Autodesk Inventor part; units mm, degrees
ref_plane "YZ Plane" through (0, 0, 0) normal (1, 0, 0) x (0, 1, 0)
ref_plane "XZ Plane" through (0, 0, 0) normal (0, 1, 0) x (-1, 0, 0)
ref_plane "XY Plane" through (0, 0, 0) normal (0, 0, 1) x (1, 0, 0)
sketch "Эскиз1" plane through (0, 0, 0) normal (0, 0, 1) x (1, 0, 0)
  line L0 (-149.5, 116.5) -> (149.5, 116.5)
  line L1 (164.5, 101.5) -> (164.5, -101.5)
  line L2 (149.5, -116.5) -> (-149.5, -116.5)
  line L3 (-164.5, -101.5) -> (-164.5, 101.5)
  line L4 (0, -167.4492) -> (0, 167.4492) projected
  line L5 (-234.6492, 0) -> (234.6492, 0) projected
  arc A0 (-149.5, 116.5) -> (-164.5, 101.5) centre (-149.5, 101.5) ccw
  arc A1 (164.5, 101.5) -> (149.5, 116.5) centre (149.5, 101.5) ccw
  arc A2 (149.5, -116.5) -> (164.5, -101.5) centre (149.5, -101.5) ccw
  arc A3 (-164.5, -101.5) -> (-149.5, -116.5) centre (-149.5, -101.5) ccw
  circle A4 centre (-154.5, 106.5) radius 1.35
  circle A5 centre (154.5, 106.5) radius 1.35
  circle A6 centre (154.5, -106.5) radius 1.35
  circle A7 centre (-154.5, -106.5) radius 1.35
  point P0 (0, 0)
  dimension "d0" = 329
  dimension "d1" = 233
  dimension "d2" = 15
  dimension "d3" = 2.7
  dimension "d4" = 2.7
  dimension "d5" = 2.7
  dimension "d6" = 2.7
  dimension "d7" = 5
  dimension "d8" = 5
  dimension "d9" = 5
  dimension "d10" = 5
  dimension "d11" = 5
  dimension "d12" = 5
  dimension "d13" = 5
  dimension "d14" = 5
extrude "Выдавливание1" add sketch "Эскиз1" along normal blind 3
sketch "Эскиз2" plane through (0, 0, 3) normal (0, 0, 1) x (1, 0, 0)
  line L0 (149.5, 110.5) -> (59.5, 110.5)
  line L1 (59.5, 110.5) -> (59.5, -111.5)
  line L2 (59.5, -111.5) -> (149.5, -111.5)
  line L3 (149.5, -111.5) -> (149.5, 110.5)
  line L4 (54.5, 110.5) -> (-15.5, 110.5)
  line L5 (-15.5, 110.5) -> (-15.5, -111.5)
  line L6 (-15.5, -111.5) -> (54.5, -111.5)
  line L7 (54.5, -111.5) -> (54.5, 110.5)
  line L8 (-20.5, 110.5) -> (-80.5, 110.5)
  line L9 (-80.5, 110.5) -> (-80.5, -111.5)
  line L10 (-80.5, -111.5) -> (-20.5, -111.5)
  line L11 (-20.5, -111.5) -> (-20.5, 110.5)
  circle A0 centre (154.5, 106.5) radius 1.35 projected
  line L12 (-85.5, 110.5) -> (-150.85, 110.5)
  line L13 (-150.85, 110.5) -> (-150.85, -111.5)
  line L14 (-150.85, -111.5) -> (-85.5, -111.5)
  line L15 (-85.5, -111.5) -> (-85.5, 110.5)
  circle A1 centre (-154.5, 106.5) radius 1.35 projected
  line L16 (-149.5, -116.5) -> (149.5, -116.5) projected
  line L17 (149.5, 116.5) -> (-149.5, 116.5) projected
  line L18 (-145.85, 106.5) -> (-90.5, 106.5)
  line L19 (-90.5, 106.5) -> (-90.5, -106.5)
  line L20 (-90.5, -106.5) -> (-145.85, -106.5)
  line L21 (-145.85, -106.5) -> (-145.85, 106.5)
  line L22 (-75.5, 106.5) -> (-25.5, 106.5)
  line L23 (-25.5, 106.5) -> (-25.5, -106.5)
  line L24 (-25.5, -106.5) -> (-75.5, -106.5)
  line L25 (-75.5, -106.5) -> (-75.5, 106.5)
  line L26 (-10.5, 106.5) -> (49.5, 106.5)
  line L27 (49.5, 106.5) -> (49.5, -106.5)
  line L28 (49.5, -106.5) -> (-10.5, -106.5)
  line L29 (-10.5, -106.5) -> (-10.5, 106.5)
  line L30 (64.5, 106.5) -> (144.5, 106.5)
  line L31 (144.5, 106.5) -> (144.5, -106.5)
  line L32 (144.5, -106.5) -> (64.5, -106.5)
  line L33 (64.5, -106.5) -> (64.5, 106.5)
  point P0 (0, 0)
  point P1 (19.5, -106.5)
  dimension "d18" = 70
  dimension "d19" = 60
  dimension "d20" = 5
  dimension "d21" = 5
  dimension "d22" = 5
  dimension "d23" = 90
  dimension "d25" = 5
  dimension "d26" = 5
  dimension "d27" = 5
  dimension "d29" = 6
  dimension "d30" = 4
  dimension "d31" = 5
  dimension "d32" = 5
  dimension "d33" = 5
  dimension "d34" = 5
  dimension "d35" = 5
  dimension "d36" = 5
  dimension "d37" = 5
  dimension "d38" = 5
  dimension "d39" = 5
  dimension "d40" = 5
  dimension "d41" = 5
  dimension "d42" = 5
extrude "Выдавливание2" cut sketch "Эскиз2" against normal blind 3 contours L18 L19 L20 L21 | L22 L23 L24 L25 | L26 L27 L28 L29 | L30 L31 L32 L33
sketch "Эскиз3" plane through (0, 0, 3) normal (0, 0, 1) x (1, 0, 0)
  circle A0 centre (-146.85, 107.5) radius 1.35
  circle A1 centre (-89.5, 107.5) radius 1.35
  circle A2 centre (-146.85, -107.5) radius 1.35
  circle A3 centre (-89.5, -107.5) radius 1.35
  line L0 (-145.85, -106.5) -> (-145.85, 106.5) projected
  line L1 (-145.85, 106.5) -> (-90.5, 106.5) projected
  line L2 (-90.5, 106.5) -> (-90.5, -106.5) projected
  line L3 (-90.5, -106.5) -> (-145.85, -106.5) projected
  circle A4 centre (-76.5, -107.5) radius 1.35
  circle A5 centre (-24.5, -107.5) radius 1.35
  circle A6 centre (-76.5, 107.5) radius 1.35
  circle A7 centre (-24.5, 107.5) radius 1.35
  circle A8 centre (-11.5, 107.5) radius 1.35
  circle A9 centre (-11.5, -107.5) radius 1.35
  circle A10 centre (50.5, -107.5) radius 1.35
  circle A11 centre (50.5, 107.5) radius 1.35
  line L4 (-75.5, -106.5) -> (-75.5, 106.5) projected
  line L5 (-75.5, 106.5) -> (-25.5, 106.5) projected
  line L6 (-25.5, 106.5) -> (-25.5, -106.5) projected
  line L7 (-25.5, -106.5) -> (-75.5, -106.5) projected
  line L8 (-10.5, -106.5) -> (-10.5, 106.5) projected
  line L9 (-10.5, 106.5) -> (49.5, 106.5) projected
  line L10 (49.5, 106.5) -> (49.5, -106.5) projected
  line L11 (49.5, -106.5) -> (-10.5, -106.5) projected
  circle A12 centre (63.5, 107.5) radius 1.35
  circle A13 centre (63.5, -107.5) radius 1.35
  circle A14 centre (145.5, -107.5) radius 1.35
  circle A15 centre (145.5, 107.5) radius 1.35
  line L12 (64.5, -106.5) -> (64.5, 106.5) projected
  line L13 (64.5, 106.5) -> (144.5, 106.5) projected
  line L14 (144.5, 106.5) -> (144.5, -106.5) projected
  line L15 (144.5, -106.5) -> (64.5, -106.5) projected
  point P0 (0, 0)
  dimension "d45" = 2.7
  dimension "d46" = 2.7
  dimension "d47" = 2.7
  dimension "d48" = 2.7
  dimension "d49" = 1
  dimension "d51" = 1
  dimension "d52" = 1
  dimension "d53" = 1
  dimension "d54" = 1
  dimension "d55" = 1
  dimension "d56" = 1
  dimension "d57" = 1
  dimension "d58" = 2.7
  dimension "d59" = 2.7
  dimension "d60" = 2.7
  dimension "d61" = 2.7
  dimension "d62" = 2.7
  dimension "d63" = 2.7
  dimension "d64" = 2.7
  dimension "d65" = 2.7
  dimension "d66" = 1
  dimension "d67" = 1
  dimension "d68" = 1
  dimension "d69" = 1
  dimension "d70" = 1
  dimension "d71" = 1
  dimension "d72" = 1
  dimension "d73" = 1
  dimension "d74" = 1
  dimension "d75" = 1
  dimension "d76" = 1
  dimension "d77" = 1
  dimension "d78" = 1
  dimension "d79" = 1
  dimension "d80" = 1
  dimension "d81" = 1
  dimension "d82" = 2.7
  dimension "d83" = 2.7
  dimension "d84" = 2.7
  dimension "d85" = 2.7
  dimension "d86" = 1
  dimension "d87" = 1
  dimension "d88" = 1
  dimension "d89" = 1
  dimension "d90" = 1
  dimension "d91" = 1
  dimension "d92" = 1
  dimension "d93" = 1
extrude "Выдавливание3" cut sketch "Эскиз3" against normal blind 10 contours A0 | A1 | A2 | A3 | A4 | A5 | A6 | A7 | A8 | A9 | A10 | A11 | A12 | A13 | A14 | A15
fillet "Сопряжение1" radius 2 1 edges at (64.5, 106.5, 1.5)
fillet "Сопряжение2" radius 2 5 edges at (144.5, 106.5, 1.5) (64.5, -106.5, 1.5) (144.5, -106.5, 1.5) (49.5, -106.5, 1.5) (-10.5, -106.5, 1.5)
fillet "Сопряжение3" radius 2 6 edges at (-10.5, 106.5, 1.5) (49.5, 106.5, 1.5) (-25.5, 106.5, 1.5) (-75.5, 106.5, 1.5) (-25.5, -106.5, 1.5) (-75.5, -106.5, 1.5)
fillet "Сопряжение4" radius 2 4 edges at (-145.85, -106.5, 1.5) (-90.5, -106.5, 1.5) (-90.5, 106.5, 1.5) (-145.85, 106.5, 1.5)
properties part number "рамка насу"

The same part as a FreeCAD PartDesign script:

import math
import FreeCAD as App
import Part
import Sketcher
from FreeCAD import Vector


def edges_at(feature, points):
    """Names of the edges that pass closest to the given points."""
    edges = feature.Shape.Edges
    near = lambda p: min(range(len(edges)), key=lambda i: edges[i].distToShape(Part.Vertex(*p))[0])
    return sorted({f"Edge{near(p) + 1}" for p in points})

doc = App.newDocument("Part")
body = doc.addObject("PartDesign::Body", "Body")

# Sketch on XY plane
sketch1 = body.newObject("Sketcher::SketchObject", "Sketch")
sketch1.AttachmentSupport = (doc.getObject("XY_Plane"), [""])
sketch1.MapMode = "FlatFace"
sketch1.addGeometry([
    Part.ArcOfCircle(Part.Circle(Vector(-149.5, 101.5, 0), Vector(0, 0, 1), 15), math.radians(90), math.radians(180)),  # 0
    Part.LineSegment(Vector(-164.5, 101.5, 0), Vector(-164.5, -101.5, 0)),  # 1
    Part.ArcOfCircle(Part.Circle(Vector(-149.5, -101.5, 0), Vector(0, 0, 1), 15), math.radians(180), math.radians(270)),  # 2
    Part.LineSegment(Vector(-149.5, -116.5, 0), Vector(149.5, -116.5, 0)),  # 3
    Part.ArcOfCircle(Part.Circle(Vector(149.5, -101.5, 0), Vector(0, 0, 1), 15), math.radians(-90), math.radians(0)),  # 4
    Part.LineSegment(Vector(164.5, -101.5, 0), Vector(164.5, 101.5, 0)),  # 5
    Part.ArcOfCircle(Part.Circle(Vector(149.5, 101.5, 0), Vector(0, 0, 1), 15), math.radians(0), math.radians(90)),  # 6
    Part.LineSegment(Vector(149.5, 116.5, 0), Vector(-149.5, 116.5, 0)),  # 7
    Part.Circle(Vector(-154.5, 106.5, 0), Vector(0, 0, 1), 1.35),  # 8
    Part.Circle(Vector(154.5, 106.5, 0), Vector(0, 0, 1), 1.35),  # 9
    Part.Circle(Vector(-154.5, -106.5, 0), Vector(0, 0, 1), 1.35),  # 10
    Part.Circle(Vector(154.5, -106.5, 0), Vector(0, 0, 1), 1.35),  # 11
], False)
sketch1.addConstraint([
    Sketcher.Constraint("Tangent", 0, 2, 1, 1),
    Sketcher.Constraint("Tangent", 1, 2, 2, 1),
    Sketcher.Constraint("Tangent", 2, 2, 3, 1),
    Sketcher.Constraint("Tangent", 3, 2, 4, 1),
    Sketcher.Constraint("Tangent", 4, 2, 5, 1),
    Sketcher.Constraint("Tangent", 5, 2, 6, 1),
    Sketcher.Constraint("Tangent", 6, 2, 7, 1),
    Sketcher.Constraint("Tangent", 7, 2, 0, 1),
    Sketcher.Constraint("Vertical", 1),
    Sketcher.Constraint("Horizontal", 3),
    Sketcher.Constraint("Vertical", 5),
    Sketcher.Constraint("Horizontal", 7),
    Sketcher.Constraint("Equal", 0, 2),
    Sketcher.Constraint("Equal", 2, 4),
    Sketcher.Constraint("Equal", 4, 6),
    Sketcher.Constraint("Equal", 8, 9),
    Sketcher.Constraint("Equal", 9, 10),
    Sketcher.Constraint("Equal", 10, 11),
    Sketcher.Constraint("Symmetric", 0, 3, 4, 3, -1, 1),
    Sketcher.Constraint("Symmetric", 9, 3, 10, 3, -1, 1),
    Sketcher.Constraint("Symmetric", 8, 3, 11, 3, -1, 1),
    Sketcher.Constraint("Symmetric", 8, 3, 9, 3, -2),
    Sketcher.Constraint("Radius", 0, 15.0),
    Sketcher.Constraint("Diameter", 8, 2.7),
    Sketcher.Constraint("DistanceX", 8, 3, 0, 3, 5.0),
    Sketcher.Constraint("DistanceY", 0, 3, 8, 3, 5.0),
    Sketcher.Constraint("DistanceX", 3, 1, 3, 2, 299.0),
    Sketcher.Constraint("DistanceY", 1, 2, 1, 1, 203.0),
])
pad1 = body.newObject("PartDesign::Pad", "Pad")
pad1.Profile = sketch1
pad1.Length = 3

# Sketch on XY plane
sketch2 = body.newObject("Sketcher::SketchObject", "Sketch001")
sketch2.AttachmentSupport = (doc.getObject("XY_Plane"), [""])
sketch2.MapMode = "FlatFace"
sketch2.AttachmentOffset = App.Placement(Vector(0, 0, 3), App.Rotation())
sketch2.addGeometry([
    Part.LineSegment(Vector(-90.5, 106.5, 0), Vector(-145.85, 106.5, 0)),  # 0
    Part.LineSegment(Vector(-145.85, 106.5, 0), Vector(-145.85, -106.5, 0)),  # 1
    Part.LineSegment(Vector(-145.85, -106.5, 0), Vector(-90.5, -106.5, 0)),  # 2
    Part.LineSegment(Vector(-90.5, -106.5, 0), Vector(-90.5, 106.5, 0)),  # 3
    Part.LineSegment(Vector(-25.5, 106.5, 0), Vector(-75.5, 106.5, 0)),  # 4
    Part.LineSegment(Vector(-75.5, 106.5, 0), Vector(-75.5, -106.5, 0)),  # 5
    Part.LineSegment(Vector(-75.5, -106.5, 0), Vector(-25.5, -106.5, 0)),  # 6
    Part.LineSegment(Vector(-25.5, -106.5, 0), Vector(-25.5, 106.5, 0)),  # 7
    Part.LineSegment(Vector(49.5, 106.5, 0), Vector(-10.5, 106.5, 0)),  # 8
    Part.LineSegment(Vector(-10.5, 106.5, 0), Vector(-10.5, -106.5, 0)),  # 9
    Part.LineSegment(Vector(-10.5, -106.5, 0), Vector(49.5, -106.5, 0)),  # 10
    Part.LineSegment(Vector(49.5, -106.5, 0), Vector(49.5, 106.5, 0)),  # 11
    Part.LineSegment(Vector(144.5, 106.5, 0), Vector(64.5, 106.5, 0)),  # 12
    Part.LineSegment(Vector(64.5, 106.5, 0), Vector(64.5, -106.5, 0)),  # 13
    Part.LineSegment(Vector(64.5, -106.5, 0), Vector(144.5, -106.5, 0)),  # 14
    Part.LineSegment(Vector(144.5, -106.5, 0), Vector(144.5, 106.5, 0)),  # 15
], False)
sketch2.addConstraint([
    Sketcher.Constraint("Coincident", 0, 2, 1, 1),
    Sketcher.Constraint("Coincident", 1, 2, 2, 1),
    Sketcher.Constraint("Coincident", 2, 2, 3, 1),
    Sketcher.Constraint("Coincident", 3, 2, 0, 1),
    Sketcher.Constraint("Coincident", 4, 2, 5, 1),
    Sketcher.Constraint("Coincident", 5, 2, 6, 1),
    Sketcher.Constraint("Coincident", 6, 2, 7, 1),
    Sketcher.Constraint("Coincident", 7, 2, 4, 1),
    Sketcher.Constraint("Coincident", 8, 2, 9, 1),
    Sketcher.Constraint("Coincident", 9, 2, 10, 1),
    Sketcher.Constraint("Coincident", 10, 2, 11, 1),
    Sketcher.Constraint("Coincident", 11, 2, 8, 1),
    Sketcher.Constraint("Coincident", 12, 2, 13, 1),
    Sketcher.Constraint("Coincident", 13, 2, 14, 1),
    Sketcher.Constraint("Coincident", 14, 2, 15, 1),
    Sketcher.Constraint("Coincident", 15, 2, 12, 1),
    Sketcher.Constraint("Horizontal", 0),
    Sketcher.Constraint("Vertical", 1),
    Sketcher.Constraint("Horizontal", 2),
    Sketcher.Constraint("Vertical", 3),
    Sketcher.Constraint("Horizontal", 4),
    Sketcher.Constraint("Vertical", 5),
    Sketcher.Constraint("Horizontal", 6),
    Sketcher.Constraint("Vertical", 7),
    Sketcher.Constraint("Horizontal", 8),
    Sketcher.Constraint("Vertical", 9),
    Sketcher.Constraint("Horizontal", 10),
    Sketcher.Constraint("Vertical", 11),
    Sketcher.Constraint("Horizontal", 12),
    Sketcher.Constraint("Vertical", 13),
    Sketcher.Constraint("Horizontal", 14),
    Sketcher.Constraint("Vertical", 15),
    Sketcher.Constraint("Horizontal", 3, 2, 4, 2),
    Sketcher.Constraint("Horizontal", 2, 2, 5, 2),
    Sketcher.Constraint("Horizontal", 7, 2, 8, 2),
    Sketcher.Constraint("Horizontal", 6, 2, 9, 2),
    Sketcher.Constraint("Horizontal", 11, 2, 12, 2),
    Sketcher.Constraint("Horizontal", 10, 2, 13, 2),
    Sketcher.Constraint("DistanceX", 8, 2, 8, 1, 60.0),
    Sketcher.Constraint("DistanceX", 7, 2, 12, 2, 90.0),
    Sketcher.Constraint("DistanceX", 4, 2, 4, 1, 50.0),
    Sketcher.Constraint("DistanceX", 12, 2, 12, 1, 80.0),
    Sketcher.Constraint("DistanceY", 1, 2, 1, 1, 213.0),
    Sketcher.Constraint("DistanceX", 3, 2, 4, 2, 15.0),
    Sketcher.Constraint("DistanceX", 7, 2, 8, 2, 15.0),
    Sketcher.Constraint("DistanceX", 0, 2, 0, 1, 55.35),
    Sketcher.Constraint("DistanceY", -1, 1, 0, 2, 106.5),
    Sketcher.Constraint("DistanceX", 2, 2, -1, 1, 90.5),
])
pocket1 = body.newObject("PartDesign::Pocket", "Pocket")
pocket1.Profile = sketch2
pocket1.Length = 3

# Sketch on XY plane
sketch3 = body.newObject("Sketcher::SketchObject", "Sketch002")
sketch3.AttachmentSupport = (doc.getObject("XY_Plane"), [""])
sketch3.MapMode = "FlatFace"
sketch3.AttachmentOffset = App.Placement(Vector(0, 0, 3), App.Rotation())
sketch3.addGeometry([
    Part.Circle(Vector(-146.85, 107.5, 0), Vector(0, 0, 1), 1.35),  # 0
    Part.Circle(Vector(-89.5, 107.5, 0), Vector(0, 0, 1), 1.35),  # 1
    Part.Circle(Vector(-146.85, -107.5, 0), Vector(0, 0, 1), 1.35),  # 2
    Part.Circle(Vector(-89.5, -107.5, 0), Vector(0, 0, 1), 1.35),  # 3
    Part.Circle(Vector(-76.5, -107.5, 0), Vector(0, 0, 1), 1.35),  # 4
    Part.Circle(Vector(-24.5, -107.5, 0), Vector(0, 0, 1), 1.35),  # 5
    Part.Circle(Vector(-76.5, 107.5, 0), Vector(0, 0, 1), 1.35),  # 6
    Part.Circle(Vector(-24.5, 107.5, 0), Vector(0, 0, 1), 1.35),  # 7
    Part.Circle(Vector(-11.5, 107.5, 0), Vector(0, 0, 1), 1.35),  # 8
    Part.Circle(Vector(-11.5, -107.5, 0), Vector(0, 0, 1), 1.35),  # 9
    Part.Circle(Vector(50.5, -107.5, 0), Vector(0, 0, 1), 1.35),  # 10
    Part.Circle(Vector(50.5, 107.5, 0), Vector(0, 0, 1), 1.35),  # 11
    Part.Circle(Vector(63.5, 107.5, 0), Vector(0, 0, 1), 1.35),  # 12
    Part.Circle(Vector(63.5, -107.5, 0), Vector(0, 0, 1), 1.35),  # 13
    Part.Circle(Vector(145.5, -107.5, 0), Vector(0, 0, 1), 1.35),  # 14
    Part.Circle(Vector(145.5, 107.5, 0), Vector(0, 0, 1), 1.35),  # 15
], False)
sketch3.addConstraint([
    Sketcher.Constraint("Equal", 0, 1),
    Sketcher.Constraint("Equal", 1, 2),
    Sketcher.Constraint("Equal", 2, 3),
    Sketcher.Constraint("Equal", 3, 4),
    Sketcher.Constraint("Equal", 4, 5),
    Sketcher.Constraint("Equal", 5, 6),
    Sketcher.Constraint("Equal", 6, 7),
    Sketcher.Constraint("Equal", 7, 8),
    Sketcher.Constraint("Equal", 8, 9),
    Sketcher.Constraint("Equal", 9, 10),
    Sketcher.Constraint("Equal", 10, 11),
    Sketcher.Constraint("Equal", 11, 12),
    Sketcher.Constraint("Equal", 12, 13),
    Sketcher.Constraint("Equal", 13, 14),
    Sketcher.Constraint("Equal", 14, 15),
    Sketcher.Constraint("Symmetric", 0, 3, 2, 3, -1),
    Sketcher.Constraint("Symmetric", 1, 3, 3, 3, -1),
    Sketcher.Constraint("Symmetric", 4, 3, 6, 3, -1),
    Sketcher.Constraint("Symmetric", 5, 3, 7, 3, -1),
    Sketcher.Constraint("Symmetric", 8, 3, 9, 3, -1),
    Sketcher.Constraint("Symmetric", 10, 3, 11, 3, -1),
    Sketcher.Constraint("Symmetric", 12, 3, 13, 3, -1),
    Sketcher.Constraint("Symmetric", 14, 3, 15, 3, -1),
    Sketcher.Constraint("Horizontal", 0, 3, 1, 3),
    Sketcher.Constraint("Horizontal", 3, 3, 4, 3),
    Sketcher.Constraint("Horizontal", 4, 3, 5, 3),
    Sketcher.Constraint("Horizontal", 7, 3, 8, 3),
    Sketcher.Constraint("Horizontal", 9, 3, 10, 3),
    Sketcher.Constraint("Horizontal", 11, 3, 12, 3),
    Sketcher.Constraint("Horizontal", 13, 3, 14, 3),
    Sketcher.Constraint("Diameter", 0, 2.7),
    Sketcher.Constraint("DistanceY", 2, 3, 0, 3, 215.0),
    Sketcher.Constraint("DistanceX", 3, 3, 4, 3, 13.0),
    Sketcher.Constraint("DistanceX", 4, 3, 5, 3, 52.0),
    Sketcher.Constraint("DistanceX", 7, 3, 8, 3, 13.0),
    Sketcher.Constraint("DistanceX", 9, 3, 10, 3, 62.0),
    Sketcher.Constraint("DistanceX", 11, 3, 12, 3, 13.0),
    Sketcher.Constraint("DistanceX", 13, 3, 14, 3, 82.0),
    Sketcher.Constraint("DistanceX", 1, 3, -1, 1, 89.5),
    Sketcher.Constraint("DistanceX", 0, 3, -1, 1, 146.85),
])
pocket2 = body.newObject("PartDesign::Pocket", "Pocket001")
pocket2.Profile = sketch3
pocket2.Length = 10
doc.recompute()

fillet = body.newObject("PartDesign::Fillet", "Fillet")
fillet.Base = (pocket2, edges_at(pocket2, [(64.5, 106.5, 1.5)]))
fillet.Radius = 2
doc.recompute()

fillet2 = body.newObject("PartDesign::Fillet", "Fillet001")
fillet2.Base = (fillet, edges_at(fillet, [
    (144.5, 106.5, 1.5),
    (64.5, -106.5, 1.5),
    (144.5, -106.5, 1.5),
    (49.5, -106.5, 1.5),
    (-10.5, -106.5, 1.5),
]))
fillet2.Radius = 2
doc.recompute()

fillet3 = body.newObject("PartDesign::Fillet", "Fillet002")
fillet3.Base = (fillet2, edges_at(fillet2, [
    (-10.5, 106.5, 1.5),
    (49.5, 106.5, 1.5),
    (-25.5, 106.5, 1.5),
    (-75.5, 106.5, 1.5),
    (-25.5, -106.5, 1.5),
    (-75.5, -106.5, 1.5),
]))
fillet3.Radius = 2
doc.recompute()

fillet4 = body.newObject("PartDesign::Fillet", "Fillet003")
fillet4.Base = (fillet3, edges_at(fillet3, [
    (-145.85, -106.5, 1.5),
    (-90.5, -106.5, 1.5),
    (-90.5, 106.5, 1.5),
    (-145.85, 106.5, 1.5),
]))
fillet4.Radius = 2

doc.recompute()
